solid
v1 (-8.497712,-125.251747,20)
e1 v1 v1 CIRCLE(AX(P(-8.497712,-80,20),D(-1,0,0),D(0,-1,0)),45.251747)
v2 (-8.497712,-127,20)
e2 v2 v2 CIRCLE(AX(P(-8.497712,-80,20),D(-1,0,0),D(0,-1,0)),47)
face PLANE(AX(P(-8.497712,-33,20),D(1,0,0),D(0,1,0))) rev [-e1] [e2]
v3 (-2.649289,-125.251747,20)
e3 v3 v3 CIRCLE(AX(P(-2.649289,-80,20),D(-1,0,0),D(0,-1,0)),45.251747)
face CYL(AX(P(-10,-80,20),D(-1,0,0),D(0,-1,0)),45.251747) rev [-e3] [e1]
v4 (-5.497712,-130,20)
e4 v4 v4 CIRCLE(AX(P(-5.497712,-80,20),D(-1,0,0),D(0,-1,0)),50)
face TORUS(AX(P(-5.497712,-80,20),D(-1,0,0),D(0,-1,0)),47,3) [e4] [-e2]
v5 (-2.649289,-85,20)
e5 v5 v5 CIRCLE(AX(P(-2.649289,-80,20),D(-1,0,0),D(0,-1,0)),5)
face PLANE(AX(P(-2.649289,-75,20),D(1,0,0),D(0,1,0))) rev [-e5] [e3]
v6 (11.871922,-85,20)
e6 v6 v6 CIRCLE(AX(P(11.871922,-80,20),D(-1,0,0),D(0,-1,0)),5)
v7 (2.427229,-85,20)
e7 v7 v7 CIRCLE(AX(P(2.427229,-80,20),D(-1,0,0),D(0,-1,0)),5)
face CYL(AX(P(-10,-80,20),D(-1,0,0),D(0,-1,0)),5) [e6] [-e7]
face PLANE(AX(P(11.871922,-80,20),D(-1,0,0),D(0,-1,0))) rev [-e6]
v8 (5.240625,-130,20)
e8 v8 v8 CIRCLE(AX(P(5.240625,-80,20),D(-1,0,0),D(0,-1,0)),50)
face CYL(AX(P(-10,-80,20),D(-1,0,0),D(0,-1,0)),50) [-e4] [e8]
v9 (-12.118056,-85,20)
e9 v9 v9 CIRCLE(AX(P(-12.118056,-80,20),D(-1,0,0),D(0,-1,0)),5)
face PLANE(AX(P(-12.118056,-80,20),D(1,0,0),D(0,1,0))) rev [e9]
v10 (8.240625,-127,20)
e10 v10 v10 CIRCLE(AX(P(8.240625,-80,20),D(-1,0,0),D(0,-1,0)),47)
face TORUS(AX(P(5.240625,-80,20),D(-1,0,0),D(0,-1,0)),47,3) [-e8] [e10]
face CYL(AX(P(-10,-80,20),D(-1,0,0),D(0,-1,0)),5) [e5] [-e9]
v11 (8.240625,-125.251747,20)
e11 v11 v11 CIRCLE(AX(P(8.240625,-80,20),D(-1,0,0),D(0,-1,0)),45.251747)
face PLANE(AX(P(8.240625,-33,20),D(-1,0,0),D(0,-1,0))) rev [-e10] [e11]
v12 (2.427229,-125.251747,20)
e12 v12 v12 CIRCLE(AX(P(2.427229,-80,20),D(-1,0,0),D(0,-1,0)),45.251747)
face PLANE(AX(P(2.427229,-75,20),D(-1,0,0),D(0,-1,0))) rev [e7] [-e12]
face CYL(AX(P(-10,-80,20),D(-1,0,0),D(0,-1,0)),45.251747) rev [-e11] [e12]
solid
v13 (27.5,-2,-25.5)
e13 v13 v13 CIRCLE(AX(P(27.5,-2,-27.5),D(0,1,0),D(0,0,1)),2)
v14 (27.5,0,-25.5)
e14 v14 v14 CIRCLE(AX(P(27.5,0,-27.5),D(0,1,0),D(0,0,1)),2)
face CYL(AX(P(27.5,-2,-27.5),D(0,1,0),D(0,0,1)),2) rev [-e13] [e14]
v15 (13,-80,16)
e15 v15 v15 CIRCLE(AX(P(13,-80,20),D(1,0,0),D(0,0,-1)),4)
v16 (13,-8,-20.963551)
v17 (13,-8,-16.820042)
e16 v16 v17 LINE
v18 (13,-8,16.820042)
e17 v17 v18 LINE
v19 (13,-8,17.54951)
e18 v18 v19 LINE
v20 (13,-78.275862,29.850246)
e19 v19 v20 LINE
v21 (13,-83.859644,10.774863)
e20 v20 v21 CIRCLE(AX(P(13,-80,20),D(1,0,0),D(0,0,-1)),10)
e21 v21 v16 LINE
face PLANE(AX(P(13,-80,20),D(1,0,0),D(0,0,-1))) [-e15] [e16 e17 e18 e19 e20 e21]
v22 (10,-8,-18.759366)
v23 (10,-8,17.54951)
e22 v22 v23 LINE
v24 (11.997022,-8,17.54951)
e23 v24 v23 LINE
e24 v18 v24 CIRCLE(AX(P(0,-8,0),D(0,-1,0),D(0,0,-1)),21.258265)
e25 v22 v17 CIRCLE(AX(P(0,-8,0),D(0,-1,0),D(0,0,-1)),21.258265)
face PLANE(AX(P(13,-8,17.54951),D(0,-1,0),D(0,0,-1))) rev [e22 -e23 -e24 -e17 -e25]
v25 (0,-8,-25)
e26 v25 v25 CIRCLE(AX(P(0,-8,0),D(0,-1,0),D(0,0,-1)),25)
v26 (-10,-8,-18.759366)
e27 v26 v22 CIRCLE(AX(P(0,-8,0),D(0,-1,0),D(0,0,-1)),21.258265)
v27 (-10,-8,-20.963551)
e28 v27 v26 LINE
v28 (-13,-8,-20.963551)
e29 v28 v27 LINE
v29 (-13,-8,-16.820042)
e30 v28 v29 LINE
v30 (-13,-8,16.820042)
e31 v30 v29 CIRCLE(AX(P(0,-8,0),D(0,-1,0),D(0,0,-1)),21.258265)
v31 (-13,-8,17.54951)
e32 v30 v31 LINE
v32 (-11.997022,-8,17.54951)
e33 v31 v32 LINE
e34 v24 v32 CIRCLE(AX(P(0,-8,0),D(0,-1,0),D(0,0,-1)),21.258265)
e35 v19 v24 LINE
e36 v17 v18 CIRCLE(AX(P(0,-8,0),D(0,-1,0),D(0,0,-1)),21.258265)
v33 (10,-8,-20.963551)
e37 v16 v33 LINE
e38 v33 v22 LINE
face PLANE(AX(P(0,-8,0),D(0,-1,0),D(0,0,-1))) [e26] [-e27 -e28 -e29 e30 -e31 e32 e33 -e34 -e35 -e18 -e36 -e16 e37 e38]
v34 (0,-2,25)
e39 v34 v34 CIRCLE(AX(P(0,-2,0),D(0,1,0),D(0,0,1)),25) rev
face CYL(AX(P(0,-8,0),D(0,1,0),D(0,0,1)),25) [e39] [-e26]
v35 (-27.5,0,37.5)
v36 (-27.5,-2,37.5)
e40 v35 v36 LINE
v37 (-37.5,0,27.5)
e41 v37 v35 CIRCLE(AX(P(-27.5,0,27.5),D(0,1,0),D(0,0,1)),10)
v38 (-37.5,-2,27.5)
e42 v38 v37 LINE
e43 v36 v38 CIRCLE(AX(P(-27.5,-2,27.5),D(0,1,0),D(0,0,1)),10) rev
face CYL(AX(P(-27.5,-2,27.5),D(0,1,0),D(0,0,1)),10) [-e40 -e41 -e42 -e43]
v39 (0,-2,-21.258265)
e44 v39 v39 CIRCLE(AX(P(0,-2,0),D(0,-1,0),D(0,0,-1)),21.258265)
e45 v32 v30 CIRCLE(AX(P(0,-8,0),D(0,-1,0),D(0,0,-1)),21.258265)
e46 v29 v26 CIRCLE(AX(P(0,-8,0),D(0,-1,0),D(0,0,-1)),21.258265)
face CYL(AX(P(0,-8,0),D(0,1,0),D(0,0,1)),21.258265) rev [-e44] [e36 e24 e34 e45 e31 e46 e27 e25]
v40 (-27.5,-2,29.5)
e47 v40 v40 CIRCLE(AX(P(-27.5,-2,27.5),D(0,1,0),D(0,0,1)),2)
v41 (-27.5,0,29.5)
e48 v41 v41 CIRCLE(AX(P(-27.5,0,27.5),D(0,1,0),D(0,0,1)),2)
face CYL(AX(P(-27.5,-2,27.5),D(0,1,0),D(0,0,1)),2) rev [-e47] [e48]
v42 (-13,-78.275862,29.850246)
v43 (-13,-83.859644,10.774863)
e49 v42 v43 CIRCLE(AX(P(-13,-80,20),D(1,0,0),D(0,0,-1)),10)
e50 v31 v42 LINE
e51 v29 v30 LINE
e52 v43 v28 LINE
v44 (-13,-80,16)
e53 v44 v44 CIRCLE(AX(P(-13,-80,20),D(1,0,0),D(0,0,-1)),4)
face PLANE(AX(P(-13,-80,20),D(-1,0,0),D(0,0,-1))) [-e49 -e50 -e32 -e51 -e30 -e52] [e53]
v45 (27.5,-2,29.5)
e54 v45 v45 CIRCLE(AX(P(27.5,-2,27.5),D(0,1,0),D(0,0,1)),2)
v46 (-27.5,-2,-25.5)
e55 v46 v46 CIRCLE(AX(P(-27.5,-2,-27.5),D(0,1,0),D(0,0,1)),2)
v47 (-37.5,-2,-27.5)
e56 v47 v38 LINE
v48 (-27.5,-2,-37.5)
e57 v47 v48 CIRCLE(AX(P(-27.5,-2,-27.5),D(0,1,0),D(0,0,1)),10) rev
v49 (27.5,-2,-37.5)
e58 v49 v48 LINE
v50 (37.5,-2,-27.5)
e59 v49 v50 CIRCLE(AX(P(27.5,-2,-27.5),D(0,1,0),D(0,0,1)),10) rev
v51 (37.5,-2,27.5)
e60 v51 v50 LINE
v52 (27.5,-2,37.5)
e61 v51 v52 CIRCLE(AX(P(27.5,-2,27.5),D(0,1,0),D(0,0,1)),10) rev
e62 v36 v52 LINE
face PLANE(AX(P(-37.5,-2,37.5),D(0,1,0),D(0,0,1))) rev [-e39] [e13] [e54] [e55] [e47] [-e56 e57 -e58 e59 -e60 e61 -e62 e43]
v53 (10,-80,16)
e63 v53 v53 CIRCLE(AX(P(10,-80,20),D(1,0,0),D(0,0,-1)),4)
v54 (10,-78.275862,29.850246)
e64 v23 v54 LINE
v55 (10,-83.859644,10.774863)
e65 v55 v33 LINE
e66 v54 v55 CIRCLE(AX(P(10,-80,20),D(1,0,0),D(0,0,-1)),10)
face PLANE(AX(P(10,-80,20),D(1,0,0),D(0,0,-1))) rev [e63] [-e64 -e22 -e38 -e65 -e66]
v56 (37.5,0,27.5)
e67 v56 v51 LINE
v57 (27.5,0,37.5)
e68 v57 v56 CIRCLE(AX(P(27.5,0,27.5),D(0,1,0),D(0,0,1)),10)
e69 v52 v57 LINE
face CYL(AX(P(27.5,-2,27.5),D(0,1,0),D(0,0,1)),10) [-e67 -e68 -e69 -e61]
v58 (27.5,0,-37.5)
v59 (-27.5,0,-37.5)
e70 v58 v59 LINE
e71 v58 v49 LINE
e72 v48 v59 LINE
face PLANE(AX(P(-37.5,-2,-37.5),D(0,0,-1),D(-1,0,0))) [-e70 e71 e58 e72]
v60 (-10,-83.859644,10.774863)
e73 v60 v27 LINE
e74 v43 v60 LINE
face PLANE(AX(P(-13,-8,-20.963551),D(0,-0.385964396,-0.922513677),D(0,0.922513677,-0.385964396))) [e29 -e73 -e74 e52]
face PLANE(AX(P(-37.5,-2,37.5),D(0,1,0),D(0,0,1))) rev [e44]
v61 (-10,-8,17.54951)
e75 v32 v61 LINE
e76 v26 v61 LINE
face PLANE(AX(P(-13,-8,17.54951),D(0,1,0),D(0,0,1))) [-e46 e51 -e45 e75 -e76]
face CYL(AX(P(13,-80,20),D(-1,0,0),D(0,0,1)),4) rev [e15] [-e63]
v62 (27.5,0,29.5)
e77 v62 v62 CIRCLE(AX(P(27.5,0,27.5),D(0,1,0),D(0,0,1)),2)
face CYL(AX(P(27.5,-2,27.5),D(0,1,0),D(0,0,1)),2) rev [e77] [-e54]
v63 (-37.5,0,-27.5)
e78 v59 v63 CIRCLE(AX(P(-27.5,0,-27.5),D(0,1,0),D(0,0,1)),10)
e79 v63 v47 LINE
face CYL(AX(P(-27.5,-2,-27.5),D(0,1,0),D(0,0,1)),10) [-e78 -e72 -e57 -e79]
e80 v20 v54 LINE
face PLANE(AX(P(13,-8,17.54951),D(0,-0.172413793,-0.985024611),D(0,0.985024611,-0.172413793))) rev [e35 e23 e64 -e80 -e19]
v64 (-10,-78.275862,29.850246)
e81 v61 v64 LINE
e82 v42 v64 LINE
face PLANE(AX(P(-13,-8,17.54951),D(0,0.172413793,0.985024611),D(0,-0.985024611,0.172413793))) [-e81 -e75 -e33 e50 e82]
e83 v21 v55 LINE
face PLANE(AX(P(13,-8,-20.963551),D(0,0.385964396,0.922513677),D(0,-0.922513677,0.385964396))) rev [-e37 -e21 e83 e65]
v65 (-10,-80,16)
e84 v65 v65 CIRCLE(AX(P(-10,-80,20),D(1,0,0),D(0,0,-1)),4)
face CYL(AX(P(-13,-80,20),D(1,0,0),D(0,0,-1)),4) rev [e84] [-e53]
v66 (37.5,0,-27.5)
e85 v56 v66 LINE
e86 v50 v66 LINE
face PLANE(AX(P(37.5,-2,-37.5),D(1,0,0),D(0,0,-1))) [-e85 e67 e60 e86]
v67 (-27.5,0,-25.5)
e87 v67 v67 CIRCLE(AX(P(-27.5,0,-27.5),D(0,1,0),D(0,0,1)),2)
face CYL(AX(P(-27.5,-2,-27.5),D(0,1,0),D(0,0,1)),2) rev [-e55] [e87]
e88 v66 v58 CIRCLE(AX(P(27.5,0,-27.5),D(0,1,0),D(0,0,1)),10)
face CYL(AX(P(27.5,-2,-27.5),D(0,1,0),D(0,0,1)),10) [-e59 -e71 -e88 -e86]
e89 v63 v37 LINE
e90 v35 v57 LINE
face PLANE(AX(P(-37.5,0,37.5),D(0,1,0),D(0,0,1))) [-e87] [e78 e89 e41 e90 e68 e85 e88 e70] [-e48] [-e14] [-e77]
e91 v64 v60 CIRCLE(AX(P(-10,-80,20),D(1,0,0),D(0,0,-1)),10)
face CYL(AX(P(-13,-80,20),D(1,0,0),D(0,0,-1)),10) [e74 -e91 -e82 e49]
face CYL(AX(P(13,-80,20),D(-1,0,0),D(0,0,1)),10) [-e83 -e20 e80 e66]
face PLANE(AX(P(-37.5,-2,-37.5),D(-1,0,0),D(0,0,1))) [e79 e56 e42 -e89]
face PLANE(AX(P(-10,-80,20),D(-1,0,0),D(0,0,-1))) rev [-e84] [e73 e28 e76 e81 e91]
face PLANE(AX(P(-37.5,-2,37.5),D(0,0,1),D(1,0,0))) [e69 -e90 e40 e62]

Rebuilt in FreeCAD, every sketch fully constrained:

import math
import FreeCAD as App
import Part
import Sketcher


def edges_at(feature, points):
    """Names of the edges that pass closest to the given points."""
    edges = feature.Shape.Edges
    near = lambda p: min(range(len(edges)), key=lambda i: edges[i].distToShape(Part.Vertex(*p))[0])
    return sorted({f"Edge{near(p) + 1}" for p in points})


def add_polygon(sketch, points):
    """Adds a closed chain of lines whose ends are joined by coincident constraints."""
    first, n = sketch.GeometryCount, len(points)
    for a, b in zip(points, points[1:] + points[:1]):
        sketch.addGeometry(Part.LineSegment(App.Vector(*a, 0), App.Vector(*b, 0)), False)
    for i in range(n):
        sketch.addConstraint(Sketcher.Constraint("Coincident", first + i, 2, first + (i + 1) % n, 1))

doc = App.newDocument("Part")
body = doc.addObject("PartDesign::Body", "Body")

# Sketch on XZ plane
sketch1 = body.newObject("Sketcher::SketchObject", "Sketch")
sketch1.AttachmentSupport = (doc.getObject("XZ_Plane"), [""])
sketch1.MapMode = "FlatFace"
add_polygon(sketch1, [(-37.5, -37.5), (-37.5, 37.5), (37.5, 37.5), (37.5, -37.5)])  # lines 0-3
sketch1.addGeometry(Part.Circle(App.Vector(-27.5, 27.5, 0), App.Vector(0, 0, 1), 2), False)  # 4
sketch1.addGeometry(Part.Circle(App.Vector(27.5, 27.5, 0), App.Vector(0, 0, 1), 2), False)  # 5
sketch1.addGeometry(Part.Circle(App.Vector(-27.5, -27.5, 0), App.Vector(0, 0, 1), 2), False)  # 6
sketch1.addGeometry(Part.Circle(App.Vector(27.5, -27.5, 0), App.Vector(0, 0, 1), 2), False)  # 7
sketch1.addConstraint(Sketcher.Constraint("Vertical", 0))
sketch1.addConstraint(Sketcher.Constraint("Horizontal", 1))
sketch1.addConstraint(Sketcher.Constraint("Vertical", 2))
sketch1.addConstraint(Sketcher.Constraint("Horizontal", 3))
sketch1.addConstraint(Sketcher.Constraint("Equal", 4, 5))
sketch1.addConstraint(Sketcher.Constraint("Equal", 5, 6))
sketch1.addConstraint(Sketcher.Constraint("Equal", 6, 7))
sketch1.addConstraint(Sketcher.Constraint("Symmetric", 5, 3, 6, 3, -1, 1))
sketch1.addConstraint(Sketcher.Constraint("Symmetric", 4, 3, 7, 3, -1, 1))
sketch1.addConstraint(Sketcher.Constraint("Symmetric", 0, 2, 2, 2, -1, 1))
sketch1.addConstraint(Sketcher.Constraint("Symmetric", 4, 3, 5, 3, -2))
sketch1.addConstraint(Sketcher.Constraint("Equal", 3, 0))
sketch1.addConstraint(Sketcher.Constraint("Diameter", 4, 4.0))
sketch1.addConstraint(Sketcher.Constraint("DistanceX", 1, 1, 1, 2, 75.0))
sketch1.addConstraint(Sketcher.Constraint("DistanceX", 4, 3, 5, 3, 55.0))
sketch1.addConstraint(Sketcher.Constraint("DistanceY", 6, 3, 4, 3, 55.0))
pad1 = body.newObject("PartDesign::Pad", "Pad")
pad1.Profile = sketch1
pad1.Length = 2
doc.recompute()

fillet = body.newObject("PartDesign::Fillet", "Fillet")
fillet.Base = (pad1, edges_at(pad1, [
    (-37.5, -1, -37.5),
    (37.5, -1, -37.5),
    (37.5, -1, 37.5),
    (-37.5, -1, 37.5),
]))
fillet.Radius = 10

# Sketch on XZ plane
sketch2 = body.newObject("Sketcher::SketchObject", "Sketch001")
sketch2.AttachmentSupport = (doc.getObject("XZ_Plane"), [""])
sketch2.MapMode = "FlatFace"
sketch2.AttachmentOffset = App.Placement(App.Vector(0, 0, 2), App.Rotation())
sketch2.addGeometry(Part.Circle(App.Vector(0, 0, 0), App.Vector(0, 0, 1), 25), False)
sketch2.addGeometry(Part.Circle(App.Vector(0, 0, 0), App.Vector(0, 0, 1), 21), False)
sketch2.addConstraint(Sketcher.Constraint("Coincident", 0, 3, -1, 1))
sketch2.addConstraint(Sketcher.Constraint("Coincident", 1, 3, -1, 1))
sketch2.addConstraint(Sketcher.Constraint("Diameter", 0, 50.0))
sketch2.addConstraint(Sketcher.Constraint("Diameter", 1, 42.51653))
pad2 = body.newObject("PartDesign::Pad", "Pad001")
pad2.Profile = sketch2
pad2.Length = 6

# Sketch on YZ plane
sketch3 = body.newObject("Sketcher::SketchObject", "Sketch002")
sketch3.AttachmentSupport = (doc.getObject("YZ_Plane"), [""])
sketch3.MapMode = "FlatFace"
sketch3.AttachmentOffset = App.Placement(App.Vector(0, 0, 10), App.Rotation())
sketch3.addGeometry(Part.LineSegment(App.Vector(-8, -21, 0), App.Vector(-8, 17.5, 0)), False)
sketch3.addGeometry(Part.LineSegment(App.Vector(-8, 17.5, 0), App.Vector(-78.3, 29.9, 0)), False)
sketch3.addGeometry(Part.ArcOfCircle(Part.Circle(App.Vector(-80, 20, 0), App.Vector(0, 0, 1), 10), math.radians(80), math.radians(247)), False)
sketch3.addGeometry(Part.LineSegment(App.Vector(-83.9, 10.8, 0), App.Vector(-8, -21, 0)), False)
sketch3.addGeometry(Part.Circle(App.Vector(-80, 20, 0), App.Vector(0, 0, 1), 4), False)
sketch3.addConstraint(Sketcher.Constraint("Coincident", 0, 2, 1, 1))
sketch3.addConstraint(Sketcher.Constraint("Tangent", 1, 2, 2, 1))
sketch3.addConstraint(Sketcher.Constraint("Tangent", 2, 2, 3, 1))
sketch3.addConstraint(Sketcher.Constraint("Coincident", 3, 2, 0, 1))
sketch3.addConstraint(Sketcher.Constraint("Vertical", 0))
sketch3.addConstraint(Sketcher.Constraint("Coincident", 4, 3, 2, 3))
sketch3.addConstraint(Sketcher.Constraint("Diameter", 4, 8.0))
sketch3.addConstraint(Sketcher.Constraint("Radius", 2, 10.0))
sketch3.addConstraint(Sketcher.Constraint("DistanceX", 2, 3, -1, 1, 80.0))
sketch3.addConstraint(Sketcher.Constraint("DistanceY", -1, 1, 2, 3, 20.0))
sketch3.addConstraint(Sketcher.Constraint("DistanceX", 0, 2, -1, 1, 8.0))
sketch3.addConstraint(Sketcher.Constraint("DistanceY", 0, 1, 0, 2, 38.513061))
sketch3.addConstraint(Sketcher.Constraint("Distance", 1, 71.34427))
pad3 = body.newObject("PartDesign::Pad", "Pad002")
pad3.Profile = sketch3
pad3.Length = 3
doc.recompute()

mirrored = body.newObject("PartDesign::Mirrored", "Mirrored")
mirrored.Originals = [pad3]
mirrored.MirrorPlane = (doc.getObject("YZ_Plane"), [""])
body.Tip = mirrored
body2 = doc.addObject("PartDesign::Body", "Body001")

# Sketch on XY plane
sketch4 = body2.newObject("Sketcher::SketchObject", "Sketch003")
sketch4.AttachmentSupport = (doc.getObject("XY_Plane001"), [""])
sketch4.MapMode = "FlatFace"
sketch4.AttachmentOffset = App.Placement(App.Vector(0, 0, 20), App.Rotation())
sketch4.addGeometry(Part.LineSegment(App.Vector(2.4, -34.7, 0), App.Vector(8.2, -34.7, 0)), False)
sketch4.addGeometry(Part.LineSegment(App.Vector(8.2, -34.7, 0), App.Vector(8.2, -33, 0)), False)
sketch4.addGeometry(Part.ArcOfCircle(Part.Circle(App.Vector(5.2, -33, 0), App.Vector(0, 0, 1), 3), math.radians(0), math.radians(90)), False)
sketch4.addGeometry(Part.LineSegment(App.Vector(5.2, -30, 0), App.Vector(-5.5, -30, 0)), False)
sketch4.addGeometry(Part.ArcOfCircle(Part.Circle(App.Vector(-5.5, -33, 0), App.Vector(0, 0, 1), 3), math.radians(90), math.radians(180)), False)
sketch4.addGeometry(Part.LineSegment(App.Vector(-8.5, -33, 0), App.Vector(-8.5, -34.7, 0)), False)
sketch4.addGeometry(Part.LineSegment(App.Vector(-8.5, -34.7, 0), App.Vector(-2.6, -34.7, 0)), False)
sketch4.addGeometry(Part.LineSegment(App.Vector(-2.6, -34.7, 0), App.Vector(-2.6, -75, 0)), False)
sketch4.addGeometry(Part.LineSegment(App.Vector(-2.6, -75, 0), App.Vector(-12.1, -75, 0)), False)
sketch4.addGeometry(Part.LineSegment(App.Vector(-12.1, -75, 0), App.Vector(-12.1, -80, 0)), False)
sketch4.addGeometry(Part.LineSegment(App.Vector(-12.1, -80, 0), App.Vector(11.9, -80, 0)), False)
sketch4.addGeometry(Part.LineSegment(App.Vector(11.9, -80, 0), App.Vector(11.9, -75, 0)), False)
sketch4.addGeometry(Part.LineSegment(App.Vector(11.9, -75, 0), App.Vector(2.4, -75, 0)), False)
sketch4.addGeometry(Part.LineSegment(App.Vector(2.4, -75, 0), App.Vector(2.4, -34.7, 0)), False)
sketch4.addGeometry(Part.LineSegment(App.Vector(-12.1, -80, 0), App.Vector(11.9, -80, 0)), True)  # axis
sketch4.addConstraint(Sketcher.Constraint("Coincident", 0, 2, 1, 1))
sketch4.addConstraint(Sketcher.Constraint("Tangent", 1, 2, 2, 1))
sketch4.addConstraint(Sketcher.Constraint("Tangent", 2, 2, 3, 1))
sketch4.addConstraint(Sketcher.Constraint("Tangent", 3, 2, 4, 1))
sketch4.addConstraint(Sketcher.Constraint("Tangent", 4, 2, 5, 1))
sketch4.addConstraint(Sketcher.Constraint("Coincident", 5, 2, 6, 1))
sketch4.addConstraint(Sketcher.Constraint("Coincident", 6, 2, 7, 1))
sketch4.addConstraint(Sketcher.Constraint("Coincident", 7, 2, 8, 1))
sketch4.addConstraint(Sketcher.Constraint("Coincident", 8, 2, 9, 1))
sketch4.addConstraint(Sketcher.Constraint("Coincident", 9, 2, 10, 1))
sketch4.addConstraint(Sketcher.Constraint("Coincident", 10, 2, 11, 1))
sketch4.addConstraint(Sketcher.Constraint("Coincident", 11, 2, 12, 1))
sketch4.addConstraint(Sketcher.Constraint("Coincident", 12, 2, 13, 1))
sketch4.addConstraint(Sketcher.Constraint("Coincident", 13, 2, 0, 1))
sketch4.addConstraint(Sketcher.Constraint("Horizontal", 0))
sketch4.addConstraint(Sketcher.Constraint("Vertical", 1))
sketch4.addConstraint(Sketcher.Constraint("Horizontal", 3))
sketch4.addConstraint(Sketcher.Constraint("Vertical", 5))
sketch4.addConstraint(Sketcher.Constraint("Horizontal", 6))
sketch4.addConstraint(Sketcher.Constraint("Vertical", 7))
sketch4.addConstraint(Sketcher.Constraint("Horizontal", 8))
sketch4.addConstraint(Sketcher.Constraint("Vertical", 9))
sketch4.addConstraint(Sketcher.Constraint("Horizontal", 10))
sketch4.addConstraint(Sketcher.Constraint("Vertical", 11))
sketch4.addConstraint(Sketcher.Constraint("Horizontal", 12))
sketch4.addConstraint(Sketcher.Constraint("Vertical", 13))
sketch4.addConstraint(Sketcher.Constraint("Horizontal", 14))
sketch4.addConstraint(Sketcher.Constraint("Coincident", 14, 1, 9, 2))
sketch4.addConstraint(Sketcher.Constraint("Equal", 2, 4))
sketch4.addConstraint(Sketcher.Constraint("Horizontal", 0, 2, 5, 2))
sketch4.addConstraint(Sketcher.Constraint("Horizontal", 8, 2, 11, 2))
sketch4.addConstraint(Sketcher.Constraint("Vertical", 11, 2, 14, 2))
sketch4.addConstraint(Sketcher.Constraint("Radius", 2, 3.0))
sketch4.addConstraint(Sketcher.Constraint("DistanceY", 9, 2, 9, 1, 5.0))
sketch4.addConstraint(Sketcher.Constraint("DistanceY", 2, 3, -1, 1, 33.0))
sketch4.addConstraint(Sketcher.Constraint("DistanceY", 7, 2, -1, 1, 75.0))
sketch4.addConstraint(Sketcher.Constraint("DistanceX", 0, 1, 0, 2, 5.813396))
sketch4.addConstraint(Sketcher.Constraint("DistanceX", 3, 2, 3, 1, 10.738337))
sketch4.addConstraint(Sketcher.Constraint("DistanceX", 6, 1, 6, 2, 5.848423))
sketch4.addConstraint(Sketcher.Constraint("DistanceX", 8, 2, 8, 1, 9.468767))
sketch4.addConstraint(Sketcher.Constraint("DistanceX", 10, 1, 10, 2, 23.989978))
sketch4.addConstraint(Sketcher.Constraint("DistanceY", 1, 1, 1, 2, 1.748253))
sketch4.addConstraint(Sketcher.Constraint("DistanceX", 6, 2, -1, 1, 2.649289))
revolution = body2.newObject("PartDesign::Revolution", "Revolution")
revolution.Profile = sketch4
revolution.ReferenceAxis = (sketch4, ["Axis0"])
revolution.Angle = 360

doc.recompute()
